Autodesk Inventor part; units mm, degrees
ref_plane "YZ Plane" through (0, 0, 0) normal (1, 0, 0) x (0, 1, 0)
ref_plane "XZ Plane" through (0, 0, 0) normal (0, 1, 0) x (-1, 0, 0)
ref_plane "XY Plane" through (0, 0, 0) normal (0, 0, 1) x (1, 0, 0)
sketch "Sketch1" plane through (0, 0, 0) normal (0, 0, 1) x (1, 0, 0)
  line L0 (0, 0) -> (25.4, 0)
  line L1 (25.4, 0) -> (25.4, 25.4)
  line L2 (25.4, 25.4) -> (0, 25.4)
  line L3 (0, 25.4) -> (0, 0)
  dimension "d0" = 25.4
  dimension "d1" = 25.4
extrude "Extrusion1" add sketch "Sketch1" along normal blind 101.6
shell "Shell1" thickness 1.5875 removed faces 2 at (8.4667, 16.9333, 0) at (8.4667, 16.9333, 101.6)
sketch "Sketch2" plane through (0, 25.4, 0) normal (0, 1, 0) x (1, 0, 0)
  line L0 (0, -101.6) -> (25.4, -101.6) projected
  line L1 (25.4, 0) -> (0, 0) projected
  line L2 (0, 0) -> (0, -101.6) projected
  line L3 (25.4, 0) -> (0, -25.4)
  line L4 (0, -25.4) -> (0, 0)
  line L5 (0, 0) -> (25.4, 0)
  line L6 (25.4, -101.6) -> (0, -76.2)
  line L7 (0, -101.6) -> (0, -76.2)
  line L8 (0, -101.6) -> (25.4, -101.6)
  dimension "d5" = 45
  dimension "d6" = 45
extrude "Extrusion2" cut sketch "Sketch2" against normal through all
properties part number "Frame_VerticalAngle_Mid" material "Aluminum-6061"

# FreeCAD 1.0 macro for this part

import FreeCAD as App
import Part
import Sketcher
from FreeCAD import Vector
Q = App.Units.Quantity


def faces_at(feature, points):
    """Names of the faces that lie closest to the given points."""
    faces = feature.Shape.Faces
    near = lambda p: min(range(len(faces)), key=lambda i: faces[i].distToShape(Part.Vertex(*p))[0])
    return sorted({f"Face{near(p) + 1}" for p in points})


def add_polygon(sketch, points):
    """Adds a closed chain of lines whose ends are joined by coincident constraints."""
    first, n = sketch.GeometryCount, len(points)
    for a, b in zip(points, points[1:] + points[:1]):
        sketch.addGeometry(Part.LineSegment(App.Vector(*a, 0), App.Vector(*b, 0)), False)
    for i in range(n):
        sketch.addConstraint(Sketcher.Constraint("Coincident", first + i, 2, first + (i + 1) % n, 1))

doc = App.newDocument("Part")
body = doc.addObject("PartDesign::Body", "Body")

# Sketch on XY plane
sketch1 = body.newObject("Sketcher::SketchObject", "Sketch")
sketch1.AttachmentSupport = (doc.getObject("XY_Plane"), [""])
sketch1.MapMode = "FlatFace"
add_polygon(sketch1, [(0, 25), (0, 0), (25, 0), (25, 25)])  # lines 0-3
sketch1.addConstraint(Sketcher.Constraint("Vertical", 0))
sketch1.addConstraint(Sketcher.Constraint("Horizontal", 1))
sketch1.addConstraint(Sketcher.Constraint("Vertical", 2))
sketch1.addConstraint(Sketcher.Constraint("Horizontal", 3))
sketch1.addConstraint(Sketcher.Constraint("Coincident", 0, 2, -1, 1))
sketch1.addConstraint(Sketcher.Constraint("Equal", 3, 0))
sketch1.addConstraint(Sketcher.Constraint("DistanceX", 1, 1, 1, 2, Q("1 in")))
pad1 = body.newObject("PartDesign::Pad", "Pad")
pad1.Profile = sketch1
pad1.Length = Q("4 in")
doc.recompute()

thickness = body.newObject("PartDesign::Thickness", "Thickness")
thickness.Base = (pad1, faces_at(pad1, [(8.467, 16.933, 0), (8.467, 16.933, 101.6)]))
thickness.Value = Q("0.0625 in")
thickness.Reversed = True
thickness.Join = "Intersection"

# Sketch on XZ plane
sketch2 = body.newObject("Sketcher::SketchObject", "Sketch001")
sketch2.AttachmentSupport = (doc.getObject("XZ_Plane"), [""])
sketch2.MapMode = "FlatFace"
sketch2.AttachmentOffset = App.Placement(Vector(0, 0, -1 * 25.4), App.Rotation())
add_polygon(sketch2, [(0, 76), (0, 102), (25, 102)])  # lines 0-2
add_polygon(sketch2, [(0, 0), (0, 25), (25, 0)])  # lines 3-5
sketch2.addConstraint(Sketcher.Constraint("Vertical", 0))
sketch2.addConstraint(Sketcher.Constraint("Horizontal", 1))
sketch2.addConstraint(Sketcher.Constraint("Vertical", 3))
sketch2.addConstraint(Sketcher.Constraint("Horizontal", 5))
sketch2.addConstraint(Sketcher.Constraint("Coincident", 5, 2, -1, 1))
sketch2.addConstraint(Sketcher.Constraint("PointOnObject", 0, 2, -2))
sketch2.addConstraint(Sketcher.Constraint("Perpendicular", 2, 4))
sketch2.addConstraint(Sketcher.Constraint("Vertical", 1, 2, 4, 2))
sketch2.addConstraint(Sketcher.Constraint("Equal", 5, 0))
sketch2.addConstraint(Sketcher.Constraint("DistanceX", 1, 1, 1, 2, Q("1 in")))
sketch2.addConstraint(Sketcher.Constraint("DistanceY", -1, 1, 0, 2, Q("4 in")))
pocket1 = body.newObject("PartDesign::Pocket", "Pocket")
pocket1.Profile = sketch2
pocket1.Type = "ThroughAll"
pocket1.Reversed = True

doc.recompute()
